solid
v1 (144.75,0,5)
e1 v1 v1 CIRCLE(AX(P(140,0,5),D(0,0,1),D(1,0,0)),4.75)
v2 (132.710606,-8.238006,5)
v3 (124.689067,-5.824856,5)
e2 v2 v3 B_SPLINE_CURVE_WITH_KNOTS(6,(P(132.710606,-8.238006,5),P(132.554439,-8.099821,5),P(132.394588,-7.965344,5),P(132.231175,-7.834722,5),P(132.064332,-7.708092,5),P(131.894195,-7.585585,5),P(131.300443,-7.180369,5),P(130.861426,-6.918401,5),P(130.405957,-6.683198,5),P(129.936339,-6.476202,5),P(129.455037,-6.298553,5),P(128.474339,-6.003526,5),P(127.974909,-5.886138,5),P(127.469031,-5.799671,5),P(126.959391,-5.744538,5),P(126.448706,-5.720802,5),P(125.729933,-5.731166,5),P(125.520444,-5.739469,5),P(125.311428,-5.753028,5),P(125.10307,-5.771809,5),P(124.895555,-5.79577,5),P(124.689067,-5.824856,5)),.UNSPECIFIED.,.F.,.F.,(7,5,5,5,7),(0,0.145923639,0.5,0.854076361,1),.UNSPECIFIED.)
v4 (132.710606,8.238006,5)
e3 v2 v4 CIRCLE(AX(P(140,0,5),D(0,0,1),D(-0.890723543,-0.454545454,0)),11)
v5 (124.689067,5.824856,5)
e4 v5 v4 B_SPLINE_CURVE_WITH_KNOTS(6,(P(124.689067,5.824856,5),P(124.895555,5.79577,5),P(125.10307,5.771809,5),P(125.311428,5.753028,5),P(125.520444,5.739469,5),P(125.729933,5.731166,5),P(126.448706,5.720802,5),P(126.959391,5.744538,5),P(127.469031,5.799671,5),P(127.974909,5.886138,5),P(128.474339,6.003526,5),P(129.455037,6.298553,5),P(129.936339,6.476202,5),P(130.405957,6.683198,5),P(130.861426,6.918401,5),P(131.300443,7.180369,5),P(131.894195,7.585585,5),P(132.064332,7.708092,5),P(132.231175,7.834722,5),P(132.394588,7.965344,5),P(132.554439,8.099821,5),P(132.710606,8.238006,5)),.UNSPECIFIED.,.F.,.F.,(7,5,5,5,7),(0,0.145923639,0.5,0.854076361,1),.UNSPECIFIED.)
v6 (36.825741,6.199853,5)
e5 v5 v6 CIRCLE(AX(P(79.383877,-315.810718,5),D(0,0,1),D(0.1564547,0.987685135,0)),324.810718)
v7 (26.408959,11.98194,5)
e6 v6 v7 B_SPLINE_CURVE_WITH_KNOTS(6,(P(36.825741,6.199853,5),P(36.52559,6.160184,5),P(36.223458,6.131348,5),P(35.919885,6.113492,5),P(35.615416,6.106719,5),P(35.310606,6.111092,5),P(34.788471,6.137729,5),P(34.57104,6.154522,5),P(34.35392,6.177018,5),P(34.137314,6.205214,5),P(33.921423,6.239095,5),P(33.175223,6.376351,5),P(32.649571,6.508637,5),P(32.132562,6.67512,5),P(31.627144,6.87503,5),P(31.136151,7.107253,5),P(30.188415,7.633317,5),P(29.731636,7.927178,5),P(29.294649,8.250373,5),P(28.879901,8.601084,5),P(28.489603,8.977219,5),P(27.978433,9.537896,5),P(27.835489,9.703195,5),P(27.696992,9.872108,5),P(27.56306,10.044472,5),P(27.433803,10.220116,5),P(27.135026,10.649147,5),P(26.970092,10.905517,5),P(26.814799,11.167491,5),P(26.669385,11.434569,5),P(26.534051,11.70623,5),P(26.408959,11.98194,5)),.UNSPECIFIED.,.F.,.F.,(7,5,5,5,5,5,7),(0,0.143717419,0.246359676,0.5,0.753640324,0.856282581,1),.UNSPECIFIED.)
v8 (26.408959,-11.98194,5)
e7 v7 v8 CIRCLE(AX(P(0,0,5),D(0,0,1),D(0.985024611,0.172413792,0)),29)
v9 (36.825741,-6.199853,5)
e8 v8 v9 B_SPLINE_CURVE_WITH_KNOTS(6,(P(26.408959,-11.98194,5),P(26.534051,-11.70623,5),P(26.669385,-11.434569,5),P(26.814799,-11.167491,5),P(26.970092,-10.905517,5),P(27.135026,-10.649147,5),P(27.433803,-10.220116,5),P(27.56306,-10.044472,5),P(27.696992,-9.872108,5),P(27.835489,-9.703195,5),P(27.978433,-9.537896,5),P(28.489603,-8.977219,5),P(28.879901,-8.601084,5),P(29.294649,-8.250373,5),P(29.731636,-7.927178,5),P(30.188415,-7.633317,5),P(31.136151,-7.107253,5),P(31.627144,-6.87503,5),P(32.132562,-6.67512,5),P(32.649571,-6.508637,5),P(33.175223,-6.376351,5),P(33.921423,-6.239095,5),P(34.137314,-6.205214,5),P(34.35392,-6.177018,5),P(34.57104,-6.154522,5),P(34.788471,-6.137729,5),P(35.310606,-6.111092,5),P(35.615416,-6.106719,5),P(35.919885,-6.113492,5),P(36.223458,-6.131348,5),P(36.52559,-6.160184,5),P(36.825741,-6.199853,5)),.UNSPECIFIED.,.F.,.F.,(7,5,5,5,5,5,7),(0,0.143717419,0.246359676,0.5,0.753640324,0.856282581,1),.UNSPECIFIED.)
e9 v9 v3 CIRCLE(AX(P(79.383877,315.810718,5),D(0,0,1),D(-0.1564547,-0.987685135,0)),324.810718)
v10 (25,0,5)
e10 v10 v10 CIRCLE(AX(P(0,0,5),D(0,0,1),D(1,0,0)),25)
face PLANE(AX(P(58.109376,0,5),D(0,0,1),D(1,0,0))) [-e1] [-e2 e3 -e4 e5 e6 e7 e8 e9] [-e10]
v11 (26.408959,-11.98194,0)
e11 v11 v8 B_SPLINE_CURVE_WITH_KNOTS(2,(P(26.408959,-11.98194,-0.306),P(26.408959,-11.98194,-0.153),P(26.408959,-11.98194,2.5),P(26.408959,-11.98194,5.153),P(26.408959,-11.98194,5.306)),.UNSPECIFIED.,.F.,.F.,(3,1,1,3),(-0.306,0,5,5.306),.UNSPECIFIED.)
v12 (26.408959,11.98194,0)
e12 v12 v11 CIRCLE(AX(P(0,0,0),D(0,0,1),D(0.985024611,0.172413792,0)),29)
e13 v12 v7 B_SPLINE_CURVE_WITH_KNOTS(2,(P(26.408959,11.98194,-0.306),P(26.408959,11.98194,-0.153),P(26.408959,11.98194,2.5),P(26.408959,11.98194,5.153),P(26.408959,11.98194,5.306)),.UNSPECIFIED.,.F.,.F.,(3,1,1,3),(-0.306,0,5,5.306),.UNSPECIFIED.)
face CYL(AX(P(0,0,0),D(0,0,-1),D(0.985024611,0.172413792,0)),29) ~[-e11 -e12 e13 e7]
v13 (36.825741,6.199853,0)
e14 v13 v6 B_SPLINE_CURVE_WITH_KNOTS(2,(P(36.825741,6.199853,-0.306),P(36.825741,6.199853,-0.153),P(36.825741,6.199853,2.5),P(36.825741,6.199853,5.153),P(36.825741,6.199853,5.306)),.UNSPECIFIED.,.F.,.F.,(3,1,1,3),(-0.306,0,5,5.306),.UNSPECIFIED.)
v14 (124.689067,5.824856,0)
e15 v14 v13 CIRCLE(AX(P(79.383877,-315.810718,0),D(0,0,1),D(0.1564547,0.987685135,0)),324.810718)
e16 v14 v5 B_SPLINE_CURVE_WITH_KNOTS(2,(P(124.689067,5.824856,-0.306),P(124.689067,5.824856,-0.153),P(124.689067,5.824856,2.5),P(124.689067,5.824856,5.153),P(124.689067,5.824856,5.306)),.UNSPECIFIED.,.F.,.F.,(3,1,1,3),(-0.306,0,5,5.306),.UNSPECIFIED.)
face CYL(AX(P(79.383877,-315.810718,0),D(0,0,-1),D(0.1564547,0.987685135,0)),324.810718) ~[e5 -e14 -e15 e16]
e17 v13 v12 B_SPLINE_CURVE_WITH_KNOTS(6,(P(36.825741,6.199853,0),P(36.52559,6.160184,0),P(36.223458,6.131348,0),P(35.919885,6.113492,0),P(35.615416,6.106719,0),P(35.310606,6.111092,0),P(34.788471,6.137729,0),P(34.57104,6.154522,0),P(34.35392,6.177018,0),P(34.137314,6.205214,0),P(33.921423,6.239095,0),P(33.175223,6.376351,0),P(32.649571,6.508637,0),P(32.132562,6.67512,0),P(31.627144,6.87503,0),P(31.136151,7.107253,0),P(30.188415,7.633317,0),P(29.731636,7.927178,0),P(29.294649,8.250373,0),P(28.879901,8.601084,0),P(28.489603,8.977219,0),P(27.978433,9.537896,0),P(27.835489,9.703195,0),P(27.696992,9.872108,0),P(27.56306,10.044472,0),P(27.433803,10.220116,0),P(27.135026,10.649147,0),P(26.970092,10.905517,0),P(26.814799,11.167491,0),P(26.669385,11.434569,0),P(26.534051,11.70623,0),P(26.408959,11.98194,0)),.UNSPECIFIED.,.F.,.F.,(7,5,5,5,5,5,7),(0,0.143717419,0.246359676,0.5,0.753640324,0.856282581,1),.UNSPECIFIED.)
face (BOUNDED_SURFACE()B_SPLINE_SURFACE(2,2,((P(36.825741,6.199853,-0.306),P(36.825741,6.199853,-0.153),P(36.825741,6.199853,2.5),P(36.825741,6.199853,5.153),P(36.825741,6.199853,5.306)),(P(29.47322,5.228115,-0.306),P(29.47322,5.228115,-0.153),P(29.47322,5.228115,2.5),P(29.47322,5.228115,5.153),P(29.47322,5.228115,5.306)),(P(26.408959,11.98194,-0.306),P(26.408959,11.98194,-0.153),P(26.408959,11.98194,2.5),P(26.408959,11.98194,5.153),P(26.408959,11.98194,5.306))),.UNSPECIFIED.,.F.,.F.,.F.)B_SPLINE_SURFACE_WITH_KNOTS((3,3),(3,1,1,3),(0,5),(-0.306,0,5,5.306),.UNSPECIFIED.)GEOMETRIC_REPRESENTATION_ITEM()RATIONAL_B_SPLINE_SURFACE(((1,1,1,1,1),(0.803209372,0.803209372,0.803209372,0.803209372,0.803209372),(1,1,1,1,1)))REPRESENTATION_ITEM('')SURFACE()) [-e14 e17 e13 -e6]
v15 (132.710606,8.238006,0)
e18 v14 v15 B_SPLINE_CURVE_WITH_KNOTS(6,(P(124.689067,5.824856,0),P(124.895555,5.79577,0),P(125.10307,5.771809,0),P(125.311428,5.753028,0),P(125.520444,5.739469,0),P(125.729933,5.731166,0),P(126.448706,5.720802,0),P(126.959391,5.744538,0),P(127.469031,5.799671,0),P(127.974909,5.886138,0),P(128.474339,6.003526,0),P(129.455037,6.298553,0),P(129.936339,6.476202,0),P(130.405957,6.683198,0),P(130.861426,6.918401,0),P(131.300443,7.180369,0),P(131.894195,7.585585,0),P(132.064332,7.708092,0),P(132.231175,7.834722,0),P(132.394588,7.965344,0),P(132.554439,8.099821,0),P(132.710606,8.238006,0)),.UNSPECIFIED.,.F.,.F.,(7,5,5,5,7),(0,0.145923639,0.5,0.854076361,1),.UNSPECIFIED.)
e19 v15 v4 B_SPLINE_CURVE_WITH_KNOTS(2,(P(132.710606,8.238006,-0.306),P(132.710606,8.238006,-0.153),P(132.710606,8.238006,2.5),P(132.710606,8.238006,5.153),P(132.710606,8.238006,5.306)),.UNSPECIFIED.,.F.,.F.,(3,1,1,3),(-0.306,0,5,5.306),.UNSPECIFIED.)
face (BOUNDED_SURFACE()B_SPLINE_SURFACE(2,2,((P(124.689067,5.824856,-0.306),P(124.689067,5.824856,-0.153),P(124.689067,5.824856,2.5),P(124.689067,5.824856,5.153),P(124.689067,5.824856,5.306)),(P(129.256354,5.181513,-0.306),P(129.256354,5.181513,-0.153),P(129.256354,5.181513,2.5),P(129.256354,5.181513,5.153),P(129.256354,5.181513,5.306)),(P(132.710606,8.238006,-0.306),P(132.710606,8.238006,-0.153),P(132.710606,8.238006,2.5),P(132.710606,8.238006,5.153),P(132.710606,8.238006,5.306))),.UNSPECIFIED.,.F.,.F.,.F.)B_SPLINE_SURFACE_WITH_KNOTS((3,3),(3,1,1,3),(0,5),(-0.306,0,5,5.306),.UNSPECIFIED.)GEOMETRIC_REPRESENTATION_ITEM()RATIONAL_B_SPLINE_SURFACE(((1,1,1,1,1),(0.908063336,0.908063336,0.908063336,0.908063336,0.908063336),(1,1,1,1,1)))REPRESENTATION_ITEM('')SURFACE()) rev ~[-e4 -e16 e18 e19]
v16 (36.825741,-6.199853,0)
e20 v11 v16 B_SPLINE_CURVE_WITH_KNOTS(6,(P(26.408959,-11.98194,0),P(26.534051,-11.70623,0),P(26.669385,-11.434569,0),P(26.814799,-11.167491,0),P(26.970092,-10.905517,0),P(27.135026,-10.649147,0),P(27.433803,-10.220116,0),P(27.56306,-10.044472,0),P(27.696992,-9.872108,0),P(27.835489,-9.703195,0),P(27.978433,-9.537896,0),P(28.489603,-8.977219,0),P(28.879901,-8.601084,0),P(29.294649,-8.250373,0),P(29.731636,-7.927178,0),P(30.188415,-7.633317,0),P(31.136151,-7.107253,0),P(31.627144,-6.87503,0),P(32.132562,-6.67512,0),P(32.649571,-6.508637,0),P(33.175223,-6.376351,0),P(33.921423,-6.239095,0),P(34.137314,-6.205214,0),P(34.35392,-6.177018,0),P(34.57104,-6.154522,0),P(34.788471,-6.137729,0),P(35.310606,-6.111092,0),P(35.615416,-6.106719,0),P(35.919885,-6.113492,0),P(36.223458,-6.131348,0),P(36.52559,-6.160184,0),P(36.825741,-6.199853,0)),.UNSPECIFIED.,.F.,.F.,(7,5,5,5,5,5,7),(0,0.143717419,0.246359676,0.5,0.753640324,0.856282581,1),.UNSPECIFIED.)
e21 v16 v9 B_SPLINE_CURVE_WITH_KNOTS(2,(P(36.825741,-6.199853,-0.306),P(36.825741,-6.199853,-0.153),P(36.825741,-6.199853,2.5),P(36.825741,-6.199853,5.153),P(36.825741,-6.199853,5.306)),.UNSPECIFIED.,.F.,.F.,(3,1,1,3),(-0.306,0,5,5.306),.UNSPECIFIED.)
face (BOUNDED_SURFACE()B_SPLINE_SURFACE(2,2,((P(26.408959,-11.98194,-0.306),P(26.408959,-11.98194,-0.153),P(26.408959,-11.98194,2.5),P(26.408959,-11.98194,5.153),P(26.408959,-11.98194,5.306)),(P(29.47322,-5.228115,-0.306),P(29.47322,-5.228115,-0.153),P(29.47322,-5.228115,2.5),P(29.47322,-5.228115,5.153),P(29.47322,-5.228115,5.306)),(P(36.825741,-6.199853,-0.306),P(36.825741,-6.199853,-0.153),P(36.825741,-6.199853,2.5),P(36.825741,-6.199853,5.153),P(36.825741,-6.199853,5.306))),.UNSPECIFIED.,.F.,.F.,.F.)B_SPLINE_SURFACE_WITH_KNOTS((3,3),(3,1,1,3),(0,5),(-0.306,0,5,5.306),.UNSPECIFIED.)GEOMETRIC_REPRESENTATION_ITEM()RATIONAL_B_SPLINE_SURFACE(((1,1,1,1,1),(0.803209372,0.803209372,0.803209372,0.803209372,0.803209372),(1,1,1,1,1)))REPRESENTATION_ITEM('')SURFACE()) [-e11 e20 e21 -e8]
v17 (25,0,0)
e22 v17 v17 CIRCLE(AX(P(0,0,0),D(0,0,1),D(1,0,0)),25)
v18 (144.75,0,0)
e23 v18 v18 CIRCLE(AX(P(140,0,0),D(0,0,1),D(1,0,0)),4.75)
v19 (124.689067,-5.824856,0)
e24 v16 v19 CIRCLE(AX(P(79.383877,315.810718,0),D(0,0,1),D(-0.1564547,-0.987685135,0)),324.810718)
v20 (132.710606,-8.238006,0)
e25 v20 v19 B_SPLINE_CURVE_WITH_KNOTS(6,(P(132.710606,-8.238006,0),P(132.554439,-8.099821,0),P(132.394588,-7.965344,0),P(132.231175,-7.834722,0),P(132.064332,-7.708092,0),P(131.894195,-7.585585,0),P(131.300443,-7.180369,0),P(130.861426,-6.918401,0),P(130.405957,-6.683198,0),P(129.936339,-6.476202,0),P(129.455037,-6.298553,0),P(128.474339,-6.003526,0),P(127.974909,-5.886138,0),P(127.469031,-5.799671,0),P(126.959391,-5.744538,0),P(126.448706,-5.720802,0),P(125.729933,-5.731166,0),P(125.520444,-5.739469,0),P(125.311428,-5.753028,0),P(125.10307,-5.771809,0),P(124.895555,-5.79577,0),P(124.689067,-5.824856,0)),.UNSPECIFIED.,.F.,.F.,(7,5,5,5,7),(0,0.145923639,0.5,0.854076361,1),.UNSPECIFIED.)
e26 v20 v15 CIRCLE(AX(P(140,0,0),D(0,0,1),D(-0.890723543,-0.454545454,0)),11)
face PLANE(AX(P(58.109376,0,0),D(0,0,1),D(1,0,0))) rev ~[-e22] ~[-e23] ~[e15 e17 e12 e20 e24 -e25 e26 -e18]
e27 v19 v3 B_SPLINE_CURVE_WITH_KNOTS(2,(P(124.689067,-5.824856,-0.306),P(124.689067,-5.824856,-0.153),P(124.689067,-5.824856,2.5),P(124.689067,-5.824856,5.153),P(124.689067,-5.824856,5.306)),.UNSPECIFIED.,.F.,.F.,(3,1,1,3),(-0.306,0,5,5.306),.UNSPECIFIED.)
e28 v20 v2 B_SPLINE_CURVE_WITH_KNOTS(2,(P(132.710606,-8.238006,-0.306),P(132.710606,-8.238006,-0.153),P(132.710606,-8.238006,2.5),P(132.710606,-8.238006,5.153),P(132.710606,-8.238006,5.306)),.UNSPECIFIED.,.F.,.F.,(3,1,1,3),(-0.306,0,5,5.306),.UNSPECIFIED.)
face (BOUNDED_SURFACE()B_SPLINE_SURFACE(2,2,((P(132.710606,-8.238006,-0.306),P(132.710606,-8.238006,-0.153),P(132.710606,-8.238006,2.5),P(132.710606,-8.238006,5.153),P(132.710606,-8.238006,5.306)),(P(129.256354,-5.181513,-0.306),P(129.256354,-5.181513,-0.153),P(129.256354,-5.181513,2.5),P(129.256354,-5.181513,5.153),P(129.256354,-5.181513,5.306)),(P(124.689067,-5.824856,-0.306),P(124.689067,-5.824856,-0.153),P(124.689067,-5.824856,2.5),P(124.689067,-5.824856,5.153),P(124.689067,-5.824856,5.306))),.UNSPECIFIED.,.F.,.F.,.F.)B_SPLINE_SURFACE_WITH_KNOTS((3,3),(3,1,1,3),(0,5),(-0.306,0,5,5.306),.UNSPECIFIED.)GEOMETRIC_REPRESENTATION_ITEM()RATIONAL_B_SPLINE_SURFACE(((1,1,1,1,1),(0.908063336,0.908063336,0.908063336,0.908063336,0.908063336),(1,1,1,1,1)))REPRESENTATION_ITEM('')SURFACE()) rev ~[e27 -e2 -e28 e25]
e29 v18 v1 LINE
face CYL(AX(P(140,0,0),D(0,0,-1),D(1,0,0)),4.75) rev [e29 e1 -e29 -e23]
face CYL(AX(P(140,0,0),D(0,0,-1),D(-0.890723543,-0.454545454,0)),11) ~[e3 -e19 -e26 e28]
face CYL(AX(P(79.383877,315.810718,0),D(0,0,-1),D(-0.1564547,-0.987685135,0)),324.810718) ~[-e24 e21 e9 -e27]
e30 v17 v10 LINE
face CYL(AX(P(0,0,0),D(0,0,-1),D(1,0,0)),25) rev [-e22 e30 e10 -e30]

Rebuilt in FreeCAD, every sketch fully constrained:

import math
import FreeCAD as App
import Part
import Sketcher

V = App.Vector


def edges_at(feature, points):
    """Names of the edges that pass closest to the given points."""
    edges = feature.Shape.Edges
    near = lambda p: min(range(len(edges)), key=lambda i: edges[i].distToShape(Part.Vertex(*p))[0])
    return sorted({f"Edge{near(p) + 1}" for p in points})

doc = App.newDocument("Part")
body = doc.addObject("PartDesign::Body", "Body")

# Sketch on XY plane
sketch1 = body.newObject("Sketcher::SketchObject", "Sketch")
sketch1.AttachmentSupport = (doc.getObject("XY_Plane"), [""])
sketch1.MapMode = "FlatFace"
sketch1.addGeometry(Part.ArcOfCircle(Part.Circle(V(79.4, -315.8, 0), V(0, 0, 1), 324.8), math.radians(81), math.radians(99)), False)
sketch1.addGeometry(Part.ArcOfCircle(Part.Circle(V(0, 0, 0), V(0, 0, 1), 29), math.radians(10), math.radians(350)), False)
sketch1.addGeometry(Part.ArcOfCircle(Part.Circle(V(79.4, 315.8, 0), V(0, 0, 1), 324.8), math.radians(-99), math.radians(-81)), False)
sketch1.addGeometry(Part.ArcOfCircle(Part.Circle(V(140, 0, 0), V(0, 0, 1), 11), math.radians(-153), math.radians(153)), False)
sketch1.addGeometry(Part.Circle(V(0, 0, 0), V(0, 0, 1), 25), False)
sketch1.addGeometry(Part.Circle(V(140, 0, 0), V(0, 0, 1), 4.8), False)
sketch1.addConstraint(Sketcher.Constraint("Coincident", 0, 2, 1, 1))
sketch1.addConstraint(Sketcher.Constraint("Coincident", 1, 2, 2, 1))
sketch1.addConstraint(Sketcher.Constraint("Coincident", 2, 2, 3, 1))
sketch1.addConstraint(Sketcher.Constraint("Coincident", 3, 2, 0, 1))
sketch1.addConstraint(Sketcher.Constraint("Coincident", 1, 3, -1, 1))
sketch1.addConstraint(Sketcher.Constraint("Coincident", 4, 3, -1, 1))
sketch1.addConstraint(Sketcher.Constraint("Coincident", 5, 3, 3, 3))
sketch1.addConstraint(Sketcher.Constraint("Equal", 0, 2))
sketch1.addConstraint(Sketcher.Constraint("Symmetric", 0, 3, 2, 3, -1))
sketch1.addConstraint(Sketcher.Constraint("PointOnObject", 3, 3, -1))
sketch1.addConstraint(Sketcher.Constraint("Horizontal", 1, 2, 2, 2))
sketch1.addConstraint(Sketcher.Constraint("Diameter", 4, 50.0))
sketch1.addConstraint(Sketcher.Constraint("Radius", 1, 29.0))
sketch1.addConstraint(Sketcher.Constraint("Radius", 3, 11.0))
sketch1.addConstraint(Sketcher.Constraint("Diameter", 5, 9.5))
sketch1.addConstraint(Sketcher.Constraint("DistanceX", -1, 1, 3, 3, 140.0))
sketch1.addConstraint(Sketcher.Constraint("DistanceY", -1, 1, 0, 2, 5.0))
sketch1.addConstraint(Sketcher.Constraint("Radius", 0, 324.810718))
pad1 = body.newObject("PartDesign::Pad", "Pad")
pad1.Profile = sketch1
pad1.Length = 5
doc.recompute()

fillet = body.newObject("PartDesign::Fillet", "Fillet")
fillet.Base = (pad1, edges_at(pad1, [
    (28.566, -5, 2.5),
    (28.566, 5, 2.5),
    (130.202, 5, 2.5),
    (130.202, -5, 2.5),
]))
fillet.Radius = 10

doc.recompute()
